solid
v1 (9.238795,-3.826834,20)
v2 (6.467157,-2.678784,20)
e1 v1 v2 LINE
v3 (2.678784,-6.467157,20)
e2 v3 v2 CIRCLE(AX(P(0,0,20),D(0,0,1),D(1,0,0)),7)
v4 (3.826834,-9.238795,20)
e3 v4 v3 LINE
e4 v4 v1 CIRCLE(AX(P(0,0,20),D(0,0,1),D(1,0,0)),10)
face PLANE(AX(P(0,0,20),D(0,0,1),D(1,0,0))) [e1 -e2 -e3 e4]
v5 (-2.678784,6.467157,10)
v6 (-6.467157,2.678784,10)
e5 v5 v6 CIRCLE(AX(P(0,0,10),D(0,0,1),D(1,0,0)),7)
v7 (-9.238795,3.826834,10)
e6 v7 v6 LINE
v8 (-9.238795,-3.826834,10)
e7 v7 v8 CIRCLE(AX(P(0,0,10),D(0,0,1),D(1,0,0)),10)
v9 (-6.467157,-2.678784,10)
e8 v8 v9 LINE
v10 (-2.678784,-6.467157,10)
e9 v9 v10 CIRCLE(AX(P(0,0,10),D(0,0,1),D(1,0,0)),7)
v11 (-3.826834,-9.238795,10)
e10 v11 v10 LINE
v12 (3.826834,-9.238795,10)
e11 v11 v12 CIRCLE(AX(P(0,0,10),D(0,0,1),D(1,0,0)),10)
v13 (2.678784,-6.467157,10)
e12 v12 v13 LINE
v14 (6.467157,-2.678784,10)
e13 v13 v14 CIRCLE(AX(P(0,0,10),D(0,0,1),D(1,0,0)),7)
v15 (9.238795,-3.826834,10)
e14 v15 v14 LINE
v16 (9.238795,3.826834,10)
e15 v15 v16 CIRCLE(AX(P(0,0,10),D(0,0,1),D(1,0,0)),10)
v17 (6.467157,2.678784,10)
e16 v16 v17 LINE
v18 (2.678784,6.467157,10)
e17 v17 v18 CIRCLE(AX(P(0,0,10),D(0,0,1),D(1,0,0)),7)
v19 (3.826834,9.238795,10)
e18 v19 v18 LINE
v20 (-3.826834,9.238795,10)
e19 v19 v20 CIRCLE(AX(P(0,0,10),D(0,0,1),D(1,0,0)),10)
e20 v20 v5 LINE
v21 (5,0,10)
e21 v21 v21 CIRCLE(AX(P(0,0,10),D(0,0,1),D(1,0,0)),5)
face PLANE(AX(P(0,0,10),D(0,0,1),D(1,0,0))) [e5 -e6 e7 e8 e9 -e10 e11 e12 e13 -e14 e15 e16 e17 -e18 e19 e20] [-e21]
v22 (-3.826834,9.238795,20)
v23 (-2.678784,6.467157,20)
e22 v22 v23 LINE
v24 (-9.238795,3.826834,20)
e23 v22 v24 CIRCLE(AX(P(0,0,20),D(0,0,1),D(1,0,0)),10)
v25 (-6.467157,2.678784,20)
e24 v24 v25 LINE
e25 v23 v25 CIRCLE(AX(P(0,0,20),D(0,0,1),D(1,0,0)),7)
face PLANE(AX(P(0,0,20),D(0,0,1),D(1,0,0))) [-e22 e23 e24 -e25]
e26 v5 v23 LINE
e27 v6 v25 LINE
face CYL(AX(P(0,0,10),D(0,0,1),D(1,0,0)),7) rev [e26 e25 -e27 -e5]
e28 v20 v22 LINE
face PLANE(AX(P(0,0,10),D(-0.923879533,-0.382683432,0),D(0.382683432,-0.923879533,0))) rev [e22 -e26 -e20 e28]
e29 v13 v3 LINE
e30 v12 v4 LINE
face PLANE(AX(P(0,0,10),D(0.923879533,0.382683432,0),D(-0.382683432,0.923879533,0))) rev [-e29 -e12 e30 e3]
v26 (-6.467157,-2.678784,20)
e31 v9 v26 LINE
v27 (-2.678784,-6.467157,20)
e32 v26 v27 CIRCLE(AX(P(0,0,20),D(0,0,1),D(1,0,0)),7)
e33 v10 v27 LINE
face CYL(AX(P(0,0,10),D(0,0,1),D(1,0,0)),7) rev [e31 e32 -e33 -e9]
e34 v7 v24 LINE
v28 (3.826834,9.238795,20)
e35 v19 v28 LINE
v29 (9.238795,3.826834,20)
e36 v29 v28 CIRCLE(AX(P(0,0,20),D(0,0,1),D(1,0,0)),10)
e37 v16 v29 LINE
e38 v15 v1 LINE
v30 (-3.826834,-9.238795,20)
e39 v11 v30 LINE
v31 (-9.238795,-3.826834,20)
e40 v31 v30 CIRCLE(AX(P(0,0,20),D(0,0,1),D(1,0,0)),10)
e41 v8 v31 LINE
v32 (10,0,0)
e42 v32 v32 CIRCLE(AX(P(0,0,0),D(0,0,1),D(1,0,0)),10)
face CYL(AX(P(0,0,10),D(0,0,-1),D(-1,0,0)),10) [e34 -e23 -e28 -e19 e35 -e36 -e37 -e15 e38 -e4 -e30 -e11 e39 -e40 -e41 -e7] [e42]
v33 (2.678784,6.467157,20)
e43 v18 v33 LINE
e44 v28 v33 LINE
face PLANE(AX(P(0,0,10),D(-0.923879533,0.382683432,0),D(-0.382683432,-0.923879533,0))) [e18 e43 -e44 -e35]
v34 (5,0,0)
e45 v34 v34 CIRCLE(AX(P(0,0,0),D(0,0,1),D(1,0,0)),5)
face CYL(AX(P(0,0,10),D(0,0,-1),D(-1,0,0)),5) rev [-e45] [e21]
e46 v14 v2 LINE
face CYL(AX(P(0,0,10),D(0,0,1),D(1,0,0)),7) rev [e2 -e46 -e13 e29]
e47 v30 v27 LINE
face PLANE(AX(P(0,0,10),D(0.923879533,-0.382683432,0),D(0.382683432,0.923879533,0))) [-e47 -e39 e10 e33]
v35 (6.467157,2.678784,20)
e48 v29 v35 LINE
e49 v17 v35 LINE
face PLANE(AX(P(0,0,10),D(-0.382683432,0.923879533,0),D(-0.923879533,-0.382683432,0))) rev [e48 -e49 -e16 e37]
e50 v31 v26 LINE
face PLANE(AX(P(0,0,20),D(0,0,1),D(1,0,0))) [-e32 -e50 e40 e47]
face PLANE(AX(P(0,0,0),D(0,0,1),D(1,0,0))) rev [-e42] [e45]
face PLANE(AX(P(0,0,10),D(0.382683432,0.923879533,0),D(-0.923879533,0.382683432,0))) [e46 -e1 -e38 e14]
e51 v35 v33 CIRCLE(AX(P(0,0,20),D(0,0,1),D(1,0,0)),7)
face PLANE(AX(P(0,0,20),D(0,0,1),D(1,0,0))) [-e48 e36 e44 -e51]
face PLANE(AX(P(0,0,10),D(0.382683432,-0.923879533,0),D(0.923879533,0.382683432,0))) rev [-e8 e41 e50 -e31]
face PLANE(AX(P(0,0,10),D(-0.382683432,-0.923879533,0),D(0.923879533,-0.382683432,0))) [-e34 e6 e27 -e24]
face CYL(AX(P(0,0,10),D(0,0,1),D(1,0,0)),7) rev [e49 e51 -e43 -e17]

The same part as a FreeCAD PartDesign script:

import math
import FreeCAD as App
import Part
import Sketcher
Q = App.Units.Quantity

doc = App.newDocument("Part")
body = doc.addObject("PartDesign::Body", "Body")

# Sketch on XY plane
sketch1 = body.newObject("Sketcher::SketchObject", "Sketch")
sketch1.AttachmentSupport = (doc.getObject("XY_Plane"), [""])
sketch1.MapMode = "FlatFace"
sketch1.addGeometry([
    Part.Circle(App.Vector(0, 0, 0), App.Vector(0, 0, 1), 10),
    Part.Circle(App.Vector(0, 0, 0), App.Vector(0, 0, 1), 5),
], False)
sketch1.addConstraint([
    Sketcher.Constraint("Coincident", 0, 3, -1, 1),
    Sketcher.Constraint("Coincident", 1, 3, -1, 1),
    Sketcher.Constraint("Diameter", 0, Q("20 mm")),
    Sketcher.Constraint("Diameter", 1, Q("10 mm")),
])
pad1 = body.newObject("PartDesign::Pad", "Pad")
pad1.Profile = sketch1
pad1.Length = 10

# Sketch on XY plane
sketch2 = body.newObject("Sketcher::SketchObject", "Sketch001")
sketch2.AttachmentSupport = (doc.getObject("XY_Plane"), [""])
sketch2.MapMode = "FlatFace"
sketch2.AttachmentOffset = App.Placement(App.Vector(0, 0, 10), App.Rotation())
sketch2.addGeometry([
    Part.Circle(App.Vector(0, 0, 0), App.Vector(0, 0, 1), 10),
    Part.Circle(App.Vector(0, 0, 0), App.Vector(0, 0, 1), 4),
], False)
sketch2.addConstraint([
    Sketcher.Constraint("Coincident", 0, 3, -1, 1),
    Sketcher.Constraint("Coincident", 1, 3, -1, 1),
    Sketcher.Constraint("Diameter", 0, Q("20 mm")),
    Sketcher.Constraint("Diameter", 1, Q("8 mm")),
])
pad2 = body.newObject("PartDesign::Pad", "Pad001")
pad2.Profile = sketch2
pad2.Length = 10

# Sketch on XY plane
sketch3 = body.newObject("Sketcher::SketchObject", "Sketch002")
sketch3.AttachmentSupport = (doc.getObject("XY_Plane"), [""])
sketch3.MapMode = "FlatFace"
sketch3.AttachmentOffset = App.Placement(App.Vector(0, 0, 10), App.Rotation())
sketch3.addGeometry([
    Part.LineSegment(App.Vector(2.7, 6.5, 0), App.Vector(3.8, 9.2, 0)),  # 0
    Part.ArcOfCircle(Part.Circle(App.Vector(0, 0, 0), App.Vector(0, 0, 1), 10), math.radians(67), math.radians(113)),  # 1
    Part.LineSegment(App.Vector(-3.8, 9.2, 0), App.Vector(-2.7, 6.5, 0)),  # 2
    Part.ArcOfCircle(Part.Circle(App.Vector(0, 0, 0), App.Vector(0, 0, 1), 7), math.radians(68), math.radians(112)),  # 3
    Part.ArcOfCircle(Part.Circle(App.Vector(0, 0, 0), App.Vector(0, 0, 1), 10), math.radians(0), math.radians(22)),  # 4
    Part.LineSegment(App.Vector(9.2, 3.8, 0), App.Vector(6.5, 2.7, 0)),  # 5
    Part.ArcOfCircle(Part.Circle(App.Vector(0, 0, 0), App.Vector(0, 0, 1), 7), math.radians(-22), math.radians(22)),  # 6
    Part.LineSegment(App.Vector(6.5, -2.7, 0), App.Vector(9.2, -3.8, 0)),  # 7
    Part.ArcOfCircle(Part.Circle(App.Vector(0, 0, 0), App.Vector(0, 0, 1), 10), math.radians(-22), math.radians(0)),  # 8
    Part.LineSegment(App.Vector(-2.7, -6.5, 0), App.Vector(-3.8, -9.2, 0)),  # 9
    Part.ArcOfCircle(Part.Circle(App.Vector(0, 0, 0), App.Vector(0, 0, 1), 10), math.radians(-113), math.radians(-67)),  # 10
    Part.LineSegment(App.Vector(3.8, -9.2, 0), App.Vector(2.7, -6.5, 0)),  # 11
    Part.ArcOfCircle(Part.Circle(App.Vector(0, 0, 0), App.Vector(0, 0, 1), 7), math.radians(-112), math.radians(-68)),  # 12
    Part.LineSegment(App.Vector(-6.5, 2.7, 0), App.Vector(-9.2, 3.8, 0)),  # 13
    Part.ArcOfCircle(Part.Circle(App.Vector(0, 0, 0), App.Vector(0, 0, 1), 10), math.radians(157), math.radians(203)),  # 14
    Part.LineSegment(App.Vector(-9.2, -3.8, 0), App.Vector(-6.5, -2.7, 0)),  # 15
    Part.ArcOfCircle(Part.Circle(App.Vector(0, 0, 0), App.Vector(0, 0, 1), 7), math.radians(158), math.radians(202)),  # 16
], False)
sketch3.addConstraint([
    Sketcher.Constraint("Coincident", 0, 2, 1, 1),
    Sketcher.Constraint("Coincident", 1, 2, 2, 1),
    Sketcher.Constraint("Coincident", 2, 2, 3, 2),
    Sketcher.Constraint("Coincident", 3, 1, 0, 1),
    Sketcher.Constraint("Coincident", 4, 2, 5, 1),
    Sketcher.Constraint("Coincident", 5, 2, 6, 2),
    Sketcher.Constraint("Coincident", 6, 1, 7, 1),
    Sketcher.Constraint("Coincident", 7, 2, 8, 1),
    Sketcher.Constraint("Tangent", 8, 2, 4, 1),
    Sketcher.Constraint("Coincident", 9, 2, 10, 1),
    Sketcher.Constraint("Coincident", 10, 2, 11, 1),
    Sketcher.Constraint("Coincident", 11, 2, 12, 2),
    Sketcher.Constraint("Coincident", 12, 1, 9, 1),
    Sketcher.Constraint("Coincident", 13, 2, 14, 1),
    Sketcher.Constraint("Coincident", 14, 2, 15, 1),
    Sketcher.Constraint("Coincident", 15, 2, 16, 2),
    Sketcher.Constraint("Coincident", 16, 1, 13, 1),
    Sketcher.Constraint("Coincident", 1, 3, -1, 1),
    Sketcher.Constraint("Coincident", 3, 3, -1, 1),
    Sketcher.Constraint("Coincident", 4, 3, -1, 1),
    Sketcher.Constraint("Coincident", 6, 3, -1, 1),
    Sketcher.Constraint("Coincident", 10, 3, -1, 1),
    Sketcher.Constraint("Coincident", 12, 3, -1, 1),
    Sketcher.Constraint("Coincident", 14, 3, -1, 1),
    Sketcher.Constraint("Coincident", 16, 3, -1, 1),
    Sketcher.Constraint("Equal", 1, 4),
    Sketcher.Constraint("Equal", 3, 6),
    Sketcher.Constraint("Equal", 4, 8),
    Sketcher.Constraint("Equal", 8, 10),
    Sketcher.Constraint("Equal", 6, 12),
    Sketcher.Constraint("Equal", 10, 14),
    Sketcher.Constraint("Equal", 12, 16),
    Sketcher.Constraint("PointOnObject", 8, 2, -1),
    Sketcher.Constraint("Perpendicular", 2, 5),
    Sketcher.Constraint("Perpendicular", 0, 7),
    Sketcher.Constraint("Perpendicular", 7, 9),
    Sketcher.Constraint("Perpendicular", 5, 11),
    Sketcher.Constraint("Perpendicular", 9, 13),
    Sketcher.Constraint("Perpendicular", 11, 15),
    Sketcher.Constraint("Horizontal", 0, 2, 1, 2),
    Sketcher.Constraint("Horizontal", 2, 2, 3, 1),
    Sketcher.Constraint("Horizontal", 9, 2, 10, 2),
    Sketcher.Constraint("Horizontal", 4, 2, 13, 2),
    Sketcher.Constraint("Horizontal", 7, 2, 14, 2),
    Sketcher.Constraint("Vertical", 5, 2, 6, 1),
    Sketcher.Constraint("Vertical", 1, 2, 9, 2),
    Sketcher.Constraint("Radius", 1, Q("10 mm")),
    Sketcher.Constraint("Radius", 3, Q("7 mm")),
    Sketcher.Constraint("Angle", 0, Q("67.5 deg")),
    Sketcher.Constraint("DistanceX", 1, 2, 0, 2, Q("7.653669 mm")),
    Sketcher.Constraint("DistanceX", 3, 1, 4, 2, Q("6.560011 mm")),
])
pocket1 = body.newObject("PartDesign::Pocket", "Pocket")
pocket1.Profile = sketch3
pocket1.Length = 10
pocket1.Reversed = True

# Sketch on XY plane
sketch4 = body.newObject("Sketcher::SketchObject", "Sketch003")
sketch4.AttachmentSupport = (doc.getObject("XY_Plane"), [""])
sketch4.MapMode = "FlatFace"
sketch4.AttachmentOffset = App.Placement(App.Vector(0, 0, 10), App.Rotation())
sketch4.addGeometry(Part.Circle(App.Vector(0, 0, 0), App.Vector(0, 0, 1), 7), False)
sketch4.addConstraint([
    Sketcher.Constraint("Coincident", 0, 3, -1, 1),
    Sketcher.Constraint("Diameter", 0, Q("14 mm")),
])
pocket2 = body.newObject("PartDesign::Pocket", "Pocket001")
pocket2.Profile = sketch4
pocket2.Length = 10
pocket2.Reversed = True

doc.recompute()
